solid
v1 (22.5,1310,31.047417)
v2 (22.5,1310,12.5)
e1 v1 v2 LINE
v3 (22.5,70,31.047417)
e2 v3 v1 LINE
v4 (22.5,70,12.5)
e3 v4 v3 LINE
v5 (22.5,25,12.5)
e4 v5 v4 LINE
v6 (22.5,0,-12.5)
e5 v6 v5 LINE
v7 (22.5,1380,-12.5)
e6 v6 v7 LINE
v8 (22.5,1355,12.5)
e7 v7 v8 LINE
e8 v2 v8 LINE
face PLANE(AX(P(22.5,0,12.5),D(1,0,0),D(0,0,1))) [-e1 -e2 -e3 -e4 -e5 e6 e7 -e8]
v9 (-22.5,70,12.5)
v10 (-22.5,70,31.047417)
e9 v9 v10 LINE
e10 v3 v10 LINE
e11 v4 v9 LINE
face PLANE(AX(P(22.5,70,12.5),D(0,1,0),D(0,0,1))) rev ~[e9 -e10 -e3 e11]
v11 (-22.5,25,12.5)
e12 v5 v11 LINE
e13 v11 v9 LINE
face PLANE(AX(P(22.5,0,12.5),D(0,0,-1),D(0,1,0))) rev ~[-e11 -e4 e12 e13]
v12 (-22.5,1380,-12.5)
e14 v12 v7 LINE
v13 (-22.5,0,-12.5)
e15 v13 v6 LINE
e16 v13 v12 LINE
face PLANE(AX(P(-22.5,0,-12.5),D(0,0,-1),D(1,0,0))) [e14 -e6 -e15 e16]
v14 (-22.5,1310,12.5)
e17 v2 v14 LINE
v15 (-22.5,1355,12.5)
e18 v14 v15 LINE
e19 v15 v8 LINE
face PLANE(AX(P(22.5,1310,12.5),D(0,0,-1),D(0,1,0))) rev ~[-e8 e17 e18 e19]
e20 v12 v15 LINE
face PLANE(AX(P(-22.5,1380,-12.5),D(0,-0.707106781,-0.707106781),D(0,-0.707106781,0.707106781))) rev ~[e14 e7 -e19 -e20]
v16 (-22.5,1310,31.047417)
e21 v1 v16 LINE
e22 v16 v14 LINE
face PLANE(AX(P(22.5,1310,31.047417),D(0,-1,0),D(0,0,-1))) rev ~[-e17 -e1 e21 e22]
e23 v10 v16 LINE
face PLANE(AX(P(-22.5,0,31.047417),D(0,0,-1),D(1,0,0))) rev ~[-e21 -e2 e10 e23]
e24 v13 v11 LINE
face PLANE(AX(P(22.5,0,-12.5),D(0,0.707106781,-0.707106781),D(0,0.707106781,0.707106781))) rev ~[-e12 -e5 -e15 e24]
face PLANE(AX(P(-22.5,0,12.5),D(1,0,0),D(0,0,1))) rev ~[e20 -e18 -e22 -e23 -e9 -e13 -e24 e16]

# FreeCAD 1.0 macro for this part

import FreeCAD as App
import Part
import Sketcher

V = App.Vector
Q = App.Units.Quantity


def add_polygon(sketch, points):
    """Adds a closed chain of lines whose ends are joined by coincident constraints."""
    first, n = sketch.GeometryCount, len(points)
    for a, b in zip(points, points[1:] + points[:1]):
        sketch.addGeometry(Part.LineSegment(App.Vector(*a, 0), App.Vector(*b, 0)), False)
    for i in range(n):
        sketch.addConstraint(Sketcher.Constraint("Coincident", first + i, 2, first + (i + 1) % n, 1))

doc = App.newDocument("Part")
params = doc.addObject("Spreadsheet::Sheet", "Params")
for row, (alias, value) in enumerate([
    ("sketch1_width", "45 mm"),
    ("sketch1_height", "25 mm"),
    ("pad1_length", "1380 mm"),
    ("sketch2_width", "25 mm"),
    ("pocket1_length", "45 mm"),
    ("sketch3_width", "25 mm"),
    ("pocket2_length", "45 mm"),
    ("sketch4_width", "45 mm"),
    ("pad2_length", "1380 mm"),
    ("sketch5_width", "70 mm"),
    ("pocket3_length", "45 mm"),
    ("sketch6_width", "70 mm"),
    ("pocket4_length", "45 mm"),
], start=1):
    params.set(f"A{row}", alias)
    params.set(f"B{row}", "=" + value)
    params.setAlias(f"B{row}", alias)

body = doc.addObject("PartDesign::Body", "Body")

# Sketch on XZ plane
sketch1 = body.newObject("Sketcher::SketchObject", "Sketch")
sketch1.AttachmentSupport = (doc.getObject("XZ_Plane"), [""])
sketch1.MapMode = "FlatFace"
add_polygon(sketch1, [(-22, 12), (-22, -12), (22, -12), (22, 12)])  # lines 0-3
sketch1.addConstraint(Sketcher.Constraint("Vertical", 0))
sketch1.addConstraint(Sketcher.Constraint("Horizontal", 1))
sketch1.addConstraint(Sketcher.Constraint("Vertical", 2))
sketch1.addConstraint(Sketcher.Constraint("Horizontal", 3))
sketch1.addConstraint(Sketcher.Constraint("Symmetric", 0, 2, 2, 2, -1, 1))
sketch1.addConstraint(Sketcher.Constraint("DistanceX", 1, 1, 1, 2, Q("45 mm")))
sketch1.addConstraint(Sketcher.Constraint("DistanceY", 0, 2, 0, 1, Q("25 mm")))
sketch1.setExpression("Constraints[9]", "Params.sketch1_width")
sketch1.setExpression("Constraints[10]", "Params.sketch1_height")
pad1 = body.newObject("PartDesign::Pad", "Pad")
pad1.Profile = sketch1
pad1.setExpression("Length", "Params.pad1_length")
pad1.Reversed = True

# Sketch on YZ plane
sketch2 = body.newObject("Sketcher::SketchObject", "Sketch001")
sketch2.AttachmentSupport = (doc.getObject("YZ_Plane"), [""])
sketch2.MapMode = "FlatFace"
sketch2.AttachmentOffset = App.Placement(V(0, 0, 22.5), App.Rotation())
add_polygon(sketch2, [(0, 12), (0, -12), (25, 12)])  # lines 0-2
sketch2.addConstraint(Sketcher.Constraint("Vertical", 0))
sketch2.addConstraint(Sketcher.Constraint("Horizontal", 2))
sketch2.addConstraint(Sketcher.Constraint("Symmetric", 0, 2, 2, 2, -1, 1))
sketch2.addConstraint(Sketcher.Constraint("Equal", 2, 0))
sketch2.addConstraint(Sketcher.Constraint("DistanceX", 2, 2, 2, 1, Q("25 mm")))
sketch2.setExpression("Constraints[7]", "Params.sketch2_width")
pocket1 = body.newObject("PartDesign::Pocket", "Pocket")
pocket1.Profile = sketch2
pocket1.setExpression("Length", "Params.pocket1_length")

# Sketch on YZ plane
sketch3 = body.newObject("Sketcher::SketchObject", "Sketch002")
sketch3.AttachmentSupport = (doc.getObject("YZ_Plane"), [""])
sketch3.MapMode = "FlatFace"
sketch3.AttachmentOffset = App.Placement(V(0, 0, -22.5), App.Rotation())
add_polygon(sketch3, [(1380, 12), (1380, -12), (1355, 12)])  # lines 0-2
sketch3.addConstraint(Sketcher.Constraint("Vertical", 0))
sketch3.addConstraint(Sketcher.Constraint("Horizontal", 2))
sketch3.addConstraint(Sketcher.Constraint("Equal", 2, 0))
sketch3.addConstraint(Sketcher.Constraint("DistanceX", 2, 1, 2, 2, Q("25 mm")))
sketch3.addConstraint(Sketcher.Constraint("DistanceX", -1, 1, 0, 2, Q("1380 mm")))
sketch3.addConstraint(Sketcher.Constraint("DistanceY", 0, 2, -1, 1, Q("12.5 mm")))
sketch3.setExpression("Constraints[6]", "Params.sketch3_width")
pocket2 = body.newObject("PartDesign::Pocket", "Pocket001")
pocket2.Profile = sketch3
pocket2.setExpression("Length", "Params.pocket2_length")
pocket2.Reversed = True

# Sketch on XZ plane
sketch4 = body.newObject("Sketcher::SketchObject", "Sketch003")
sketch4.AttachmentSupport = (doc.getObject("XZ_Plane"), [""])
sketch4.MapMode = "FlatFace"
add_polygon(sketch4, [(-22, 31), (-22, 12), (22, 12), (22, 31)])  # lines 0-3
sketch4.addConstraint(Sketcher.Constraint("Vertical", 0))
sketch4.addConstraint(Sketcher.Constraint("Horizontal", 1))
sketch4.addConstraint(Sketcher.Constraint("Vertical", 2))
sketch4.addConstraint(Sketcher.Constraint("Horizontal", 3))
sketch4.addConstraint(Sketcher.Constraint("DistanceX", 1, 1, 1, 2, Q("45 mm")))
sketch4.addConstraint(Sketcher.Constraint("DistanceX", 0, 2, -1, 1, Q("22.5 mm")))
sketch4.addConstraint(Sketcher.Constraint("DistanceY", -1, 1, 0, 2, Q("12.5 mm")))
sketch4.addConstraint(Sketcher.Constraint("DistanceY", 0, 2, 0, 1, Q("18.547417 mm")))
sketch4.setExpression("Constraints[8]", "Params.sketch4_width")
pad2 = body.newObject("PartDesign::Pad", "Pad001")
pad2.Profile = sketch4
pad2.setExpression("Length", "Params.pad2_length")
pad2.Reversed = True

# Sketch on YZ plane
sketch5 = body.newObject("Sketcher::SketchObject", "Sketch004")
sketch5.AttachmentSupport = (doc.getObject("YZ_Plane"), [""])
sketch5.MapMode = "FlatFace"
sketch5.AttachmentOffset = App.Placement(V(0, 0, 22.5), App.Rotation())
add_polygon(sketch5, [(70, 31), (0, 31), (0, 12), (70, 12)])  # lines 0-3
sketch5.addConstraint(Sketcher.Constraint("Horizontal", 0))
sketch5.addConstraint(Sketcher.Constraint("Vertical", 1))
sketch5.addConstraint(Sketcher.Constraint("Horizontal", 2))
sketch5.addConstraint(Sketcher.Constraint("Vertical", 3))
sketch5.addConstraint(Sketcher.Constraint("PointOnObject", 0, 2, -2))
sketch5.addConstraint(Sketcher.Constraint("DistanceX", 0, 2, 0, 1, Q("70 mm")))
sketch5.addConstraint(Sketcher.Constraint("DistanceY", -1, 1, 1, 2, Q("12.5 mm")))
sketch5.addConstraint(Sketcher.Constraint("DistanceY", 1, 2, 1, 1, Q("18.547417 mm")))
sketch5.setExpression("Constraints[9]", "Params.sketch5_width")
pocket3 = body.newObject("PartDesign::Pocket", "Pocket002")
pocket3.Profile = sketch5
pocket3.setExpression("Length", "Params.pocket3_length")

# Sketch on YZ plane
sketch6 = body.newObject("Sketcher::SketchObject", "Sketch005")
sketch6.AttachmentSupport = (doc.getObject("YZ_Plane"), [""])
sketch6.MapMode = "FlatFace"
sketch6.AttachmentOffset = App.Placement(V(0, 0, 22.5), App.Rotation())
add_polygon(sketch6, [(1380, 12), (1380, 31), (1310, 31), (1310, 12)])  # lines 0-3
sketch6.addConstraint(Sketcher.Constraint("Vertical", 0))
sketch6.addConstraint(Sketcher.Constraint("Horizontal", 1))
sketch6.addConstraint(Sketcher.Constraint("Vertical", 2))
sketch6.addConstraint(Sketcher.Constraint("Horizontal", 3))
sketch6.addConstraint(Sketcher.Constraint("DistanceX", 1, 2, 1, 1, Q("70 mm")))
sketch6.addConstraint(Sketcher.Constraint("DistanceX", -1, 1, 0, 2, Q("1380 mm")))
sketch6.addConstraint(Sketcher.Constraint("DistanceY", -1, 1, 2, 2, Q("12.5 mm")))
sketch6.addConstraint(Sketcher.Constraint("DistanceY", 0, 1, 0, 2, Q("18.547417 mm")))
sketch6.setExpression("Constraints[8]", "Params.sketch6_width")
pocket4 = body.newObject("PartDesign::Pocket", "Pocket003")
pocket4.Profile = sketch6
pocket4.setExpression("Length", "Params.pocket4_length")

doc.recompute()
